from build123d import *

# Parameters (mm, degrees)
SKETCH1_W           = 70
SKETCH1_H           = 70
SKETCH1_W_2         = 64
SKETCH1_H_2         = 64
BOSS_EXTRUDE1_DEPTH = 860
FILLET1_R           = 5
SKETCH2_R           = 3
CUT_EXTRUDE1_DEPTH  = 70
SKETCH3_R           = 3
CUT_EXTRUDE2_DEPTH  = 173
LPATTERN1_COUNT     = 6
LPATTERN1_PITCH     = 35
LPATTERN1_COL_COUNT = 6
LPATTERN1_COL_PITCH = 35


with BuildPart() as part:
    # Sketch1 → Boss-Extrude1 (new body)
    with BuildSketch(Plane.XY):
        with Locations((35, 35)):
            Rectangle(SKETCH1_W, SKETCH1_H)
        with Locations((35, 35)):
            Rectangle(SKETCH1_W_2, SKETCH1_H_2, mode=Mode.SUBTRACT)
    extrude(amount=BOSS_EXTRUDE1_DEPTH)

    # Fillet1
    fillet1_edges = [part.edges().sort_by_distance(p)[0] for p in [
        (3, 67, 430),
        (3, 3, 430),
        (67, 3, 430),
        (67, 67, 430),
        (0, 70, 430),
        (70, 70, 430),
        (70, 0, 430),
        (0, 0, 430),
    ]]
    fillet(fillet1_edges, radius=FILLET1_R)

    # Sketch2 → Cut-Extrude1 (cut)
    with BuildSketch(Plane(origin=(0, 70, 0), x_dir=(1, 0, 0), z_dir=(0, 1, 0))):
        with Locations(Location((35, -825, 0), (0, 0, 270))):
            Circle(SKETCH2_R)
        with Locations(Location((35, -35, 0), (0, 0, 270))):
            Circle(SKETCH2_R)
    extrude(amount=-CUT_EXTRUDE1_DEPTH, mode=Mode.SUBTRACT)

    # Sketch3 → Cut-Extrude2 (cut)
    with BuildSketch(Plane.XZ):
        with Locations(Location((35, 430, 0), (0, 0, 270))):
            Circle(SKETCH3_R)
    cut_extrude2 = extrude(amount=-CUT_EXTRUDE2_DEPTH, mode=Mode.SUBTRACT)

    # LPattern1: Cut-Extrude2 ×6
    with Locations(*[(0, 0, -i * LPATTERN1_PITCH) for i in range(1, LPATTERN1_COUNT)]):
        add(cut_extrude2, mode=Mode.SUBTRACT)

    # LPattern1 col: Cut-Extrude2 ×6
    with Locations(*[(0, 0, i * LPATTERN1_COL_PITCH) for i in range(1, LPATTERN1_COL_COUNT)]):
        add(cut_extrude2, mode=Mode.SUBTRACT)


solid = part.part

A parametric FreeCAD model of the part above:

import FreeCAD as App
import Part
import Sketcher

V = App.Vector
Q = App.Units.Quantity


def edges_at(feature, points):
    """Names of the edges that pass closest to the given points."""
    edges = feature.Shape.Edges
    near = lambda p: min(range(len(edges)), key=lambda i: edges[i].distToShape(Part.Vertex(*p))[0])
    return sorted({f"Edge{near(p) + 1}" for p in points})

doc = App.newDocument("Part")
body = doc.addObject("PartDesign::Body", "Body")

# Sketch on XY plane
sketch1 = body.newObject("Sketcher::SketchObject", "Sketch")
sketch1.AttachmentSupport = (doc.getObject("XY_Plane"), [""])
sketch1.MapMode = "FlatFace"
sketch1.addGeometry([
    Part.LineSegment(V(0, 70, 0), V(0, 0, 0)),  # 0
    Part.LineSegment(V(0, 0, 0), V(70, 0, 0)),  # 1
    Part.LineSegment(V(70, 0, 0), V(70, 70, 0)),  # 2
    Part.LineSegment(V(70, 70, 0), V(0, 70, 0)),  # 3
    Part.LineSegment(V(67, 3, 0), V(3, 3, 0)),  # 4
    Part.LineSegment(V(3, 3, 0), V(3, 67, 0)),  # 5
    Part.LineSegment(V(3, 67, 0), V(67, 67, 0)),  # 6
    Part.LineSegment(V(67, 67, 0), V(67, 3, 0)),  # 7
], False)
sketch1.addConstraint([
    Sketcher.Constraint("Coincident", 0, 2, 1, 1),
    Sketcher.Constraint("Coincident", 1, 2, 2, 1),
    Sketcher.Constraint("Coincident", 2, 2, 3, 1),
    Sketcher.Constraint("Coincident", 3, 2, 0, 1),
    Sketcher.Constraint("Coincident", 4, 2, 5, 1),
    Sketcher.Constraint("Coincident", 5, 2, 6, 1),
    Sketcher.Constraint("Coincident", 6, 2, 7, 1),
    Sketcher.Constraint("Coincident", 7, 2, 4, 1),
    Sketcher.Constraint("Vertical", 0),
    Sketcher.Constraint("Horizontal", 1),
    Sketcher.Constraint("Vertical", 2),
    Sketcher.Constraint("Horizontal", 3),
    Sketcher.Constraint("Horizontal", 4),
    Sketcher.Constraint("Vertical", 5),
    Sketcher.Constraint("Horizontal", 6),
    Sketcher.Constraint("Vertical", 7),
    Sketcher.Constraint("Coincident", 0, 2, -1, 1),
    Sketcher.Constraint("Equal", 3, 0),
    Sketcher.Constraint("Equal", 6, 5),
    Sketcher.Constraint("DistanceX", 1, 1, 1, 2, Q("70 mm")),
    Sketcher.Constraint("DistanceX", 4, 2, 4, 1, Q("64 mm")),
    Sketcher.Constraint("DistanceX", -1, 1, 4, 2, Q("3 mm")),
    Sketcher.Constraint("DistanceY", -1, 1, 4, 2, Q("3 mm")),
])
pad1 = body.newObject("PartDesign::Pad", "Pad")
pad1.Profile = sketch1
pad1.Length = 860
doc.recompute()

fillet = body.newObject("PartDesign::Fillet", "Fillet")
fillet.Base = (pad1, edges_at(pad1, [
    (3, 67, 430),
    (3, 3, 430),
    (67, 3, 430),
    (67, 67, 430),
    (0, 70, 430),
    (70, 70, 430),
    (70, 0, 430),
    (0, 0, 430),
]))
fillet.Radius = 5

# Sketch on XZ plane
sketch2 = body.newObject("Sketcher::SketchObject", "Sketch001")
sketch2.AttachmentSupport = (doc.getObject("XZ_Plane"), [""])
sketch2.MapMode = "FlatFace"
sketch2.AttachmentOffset = App.Placement(V(0, 0, -70), App.Rotation())
sketch2.addGeometry([
    Part.Circle(V(35, 825, 0), V(0, 0, 1), 3),
    Part.Circle(V(35, 35, 0), V(0, 0, 1), 3),
], False)
sketch2.addConstraint([
    Sketcher.Constraint("Equal", 0, 1),
    Sketcher.Constraint("Vertical", 0, 3, 1, 3),
    Sketcher.Constraint("Diameter", 0, Q("6 mm")),
    Sketcher.Constraint("DistanceX", -1, 1, 0, 3, Q("35 mm")),
    Sketcher.Constraint("DistanceY", -1, 1, 0, 3, Q("825 mm")),
    Sketcher.Constraint("DistanceY", -1, 1, 1, 3, Q("35 mm")),
])
pocket1 = body.newObject("PartDesign::Pocket", "Pocket")
pocket1.Profile = sketch2
pocket1.Length = 70
pocket1.Reversed = True

# Sketch on XZ plane
sketch3 = body.newObject("Sketcher::SketchObject", "Sketch002")
sketch3.AttachmentSupport = (doc.getObject("XZ_Plane"), [""])
sketch3.MapMode = "FlatFace"
sketch3.addGeometry(Part.Circle(V(35, 430, 0), V(0, 0, 1), 3), False)
sketch3.addConstraint([
    Sketcher.Constraint("Diameter", 0, Q("6 mm")),
    Sketcher.Constraint("DistanceX", -1, 1, 0, 3, Q("35 mm")),
    Sketcher.Constraint("DistanceY", -1, 1, 0, 3, Q("430 mm")),
])
pocket2 = body.newObject("PartDesign::Pocket", "Pocket001")
pocket2.Profile = sketch3
pocket2.Length = 173
doc.recompute()

linearpattern = body.newObject("PartDesign::LinearPattern", "LinearPattern")
linearpattern.Originals = [pocket2]
linearpattern.Direction = (doc.getObject("Z_Axis"), [""])
linearpattern.Mode = "offset"
linearpattern.Offset = 35
linearpattern.Occurrences = 6
linearpattern.Reversed = True
body.Tip = linearpattern
doc.recompute()

linearpattern2 = body.newObject("PartDesign::LinearPattern", "LinearPattern001")
linearpattern2.Originals = [pocket2]
linearpattern2.Direction = (doc.getObject("Z_Axis"), [""])
linearpattern2.Mode = "offset"
linearpattern2.Offset = 35
linearpattern2.Occurrences = 6
body.Tip = linearpattern2

doc.recompute()
